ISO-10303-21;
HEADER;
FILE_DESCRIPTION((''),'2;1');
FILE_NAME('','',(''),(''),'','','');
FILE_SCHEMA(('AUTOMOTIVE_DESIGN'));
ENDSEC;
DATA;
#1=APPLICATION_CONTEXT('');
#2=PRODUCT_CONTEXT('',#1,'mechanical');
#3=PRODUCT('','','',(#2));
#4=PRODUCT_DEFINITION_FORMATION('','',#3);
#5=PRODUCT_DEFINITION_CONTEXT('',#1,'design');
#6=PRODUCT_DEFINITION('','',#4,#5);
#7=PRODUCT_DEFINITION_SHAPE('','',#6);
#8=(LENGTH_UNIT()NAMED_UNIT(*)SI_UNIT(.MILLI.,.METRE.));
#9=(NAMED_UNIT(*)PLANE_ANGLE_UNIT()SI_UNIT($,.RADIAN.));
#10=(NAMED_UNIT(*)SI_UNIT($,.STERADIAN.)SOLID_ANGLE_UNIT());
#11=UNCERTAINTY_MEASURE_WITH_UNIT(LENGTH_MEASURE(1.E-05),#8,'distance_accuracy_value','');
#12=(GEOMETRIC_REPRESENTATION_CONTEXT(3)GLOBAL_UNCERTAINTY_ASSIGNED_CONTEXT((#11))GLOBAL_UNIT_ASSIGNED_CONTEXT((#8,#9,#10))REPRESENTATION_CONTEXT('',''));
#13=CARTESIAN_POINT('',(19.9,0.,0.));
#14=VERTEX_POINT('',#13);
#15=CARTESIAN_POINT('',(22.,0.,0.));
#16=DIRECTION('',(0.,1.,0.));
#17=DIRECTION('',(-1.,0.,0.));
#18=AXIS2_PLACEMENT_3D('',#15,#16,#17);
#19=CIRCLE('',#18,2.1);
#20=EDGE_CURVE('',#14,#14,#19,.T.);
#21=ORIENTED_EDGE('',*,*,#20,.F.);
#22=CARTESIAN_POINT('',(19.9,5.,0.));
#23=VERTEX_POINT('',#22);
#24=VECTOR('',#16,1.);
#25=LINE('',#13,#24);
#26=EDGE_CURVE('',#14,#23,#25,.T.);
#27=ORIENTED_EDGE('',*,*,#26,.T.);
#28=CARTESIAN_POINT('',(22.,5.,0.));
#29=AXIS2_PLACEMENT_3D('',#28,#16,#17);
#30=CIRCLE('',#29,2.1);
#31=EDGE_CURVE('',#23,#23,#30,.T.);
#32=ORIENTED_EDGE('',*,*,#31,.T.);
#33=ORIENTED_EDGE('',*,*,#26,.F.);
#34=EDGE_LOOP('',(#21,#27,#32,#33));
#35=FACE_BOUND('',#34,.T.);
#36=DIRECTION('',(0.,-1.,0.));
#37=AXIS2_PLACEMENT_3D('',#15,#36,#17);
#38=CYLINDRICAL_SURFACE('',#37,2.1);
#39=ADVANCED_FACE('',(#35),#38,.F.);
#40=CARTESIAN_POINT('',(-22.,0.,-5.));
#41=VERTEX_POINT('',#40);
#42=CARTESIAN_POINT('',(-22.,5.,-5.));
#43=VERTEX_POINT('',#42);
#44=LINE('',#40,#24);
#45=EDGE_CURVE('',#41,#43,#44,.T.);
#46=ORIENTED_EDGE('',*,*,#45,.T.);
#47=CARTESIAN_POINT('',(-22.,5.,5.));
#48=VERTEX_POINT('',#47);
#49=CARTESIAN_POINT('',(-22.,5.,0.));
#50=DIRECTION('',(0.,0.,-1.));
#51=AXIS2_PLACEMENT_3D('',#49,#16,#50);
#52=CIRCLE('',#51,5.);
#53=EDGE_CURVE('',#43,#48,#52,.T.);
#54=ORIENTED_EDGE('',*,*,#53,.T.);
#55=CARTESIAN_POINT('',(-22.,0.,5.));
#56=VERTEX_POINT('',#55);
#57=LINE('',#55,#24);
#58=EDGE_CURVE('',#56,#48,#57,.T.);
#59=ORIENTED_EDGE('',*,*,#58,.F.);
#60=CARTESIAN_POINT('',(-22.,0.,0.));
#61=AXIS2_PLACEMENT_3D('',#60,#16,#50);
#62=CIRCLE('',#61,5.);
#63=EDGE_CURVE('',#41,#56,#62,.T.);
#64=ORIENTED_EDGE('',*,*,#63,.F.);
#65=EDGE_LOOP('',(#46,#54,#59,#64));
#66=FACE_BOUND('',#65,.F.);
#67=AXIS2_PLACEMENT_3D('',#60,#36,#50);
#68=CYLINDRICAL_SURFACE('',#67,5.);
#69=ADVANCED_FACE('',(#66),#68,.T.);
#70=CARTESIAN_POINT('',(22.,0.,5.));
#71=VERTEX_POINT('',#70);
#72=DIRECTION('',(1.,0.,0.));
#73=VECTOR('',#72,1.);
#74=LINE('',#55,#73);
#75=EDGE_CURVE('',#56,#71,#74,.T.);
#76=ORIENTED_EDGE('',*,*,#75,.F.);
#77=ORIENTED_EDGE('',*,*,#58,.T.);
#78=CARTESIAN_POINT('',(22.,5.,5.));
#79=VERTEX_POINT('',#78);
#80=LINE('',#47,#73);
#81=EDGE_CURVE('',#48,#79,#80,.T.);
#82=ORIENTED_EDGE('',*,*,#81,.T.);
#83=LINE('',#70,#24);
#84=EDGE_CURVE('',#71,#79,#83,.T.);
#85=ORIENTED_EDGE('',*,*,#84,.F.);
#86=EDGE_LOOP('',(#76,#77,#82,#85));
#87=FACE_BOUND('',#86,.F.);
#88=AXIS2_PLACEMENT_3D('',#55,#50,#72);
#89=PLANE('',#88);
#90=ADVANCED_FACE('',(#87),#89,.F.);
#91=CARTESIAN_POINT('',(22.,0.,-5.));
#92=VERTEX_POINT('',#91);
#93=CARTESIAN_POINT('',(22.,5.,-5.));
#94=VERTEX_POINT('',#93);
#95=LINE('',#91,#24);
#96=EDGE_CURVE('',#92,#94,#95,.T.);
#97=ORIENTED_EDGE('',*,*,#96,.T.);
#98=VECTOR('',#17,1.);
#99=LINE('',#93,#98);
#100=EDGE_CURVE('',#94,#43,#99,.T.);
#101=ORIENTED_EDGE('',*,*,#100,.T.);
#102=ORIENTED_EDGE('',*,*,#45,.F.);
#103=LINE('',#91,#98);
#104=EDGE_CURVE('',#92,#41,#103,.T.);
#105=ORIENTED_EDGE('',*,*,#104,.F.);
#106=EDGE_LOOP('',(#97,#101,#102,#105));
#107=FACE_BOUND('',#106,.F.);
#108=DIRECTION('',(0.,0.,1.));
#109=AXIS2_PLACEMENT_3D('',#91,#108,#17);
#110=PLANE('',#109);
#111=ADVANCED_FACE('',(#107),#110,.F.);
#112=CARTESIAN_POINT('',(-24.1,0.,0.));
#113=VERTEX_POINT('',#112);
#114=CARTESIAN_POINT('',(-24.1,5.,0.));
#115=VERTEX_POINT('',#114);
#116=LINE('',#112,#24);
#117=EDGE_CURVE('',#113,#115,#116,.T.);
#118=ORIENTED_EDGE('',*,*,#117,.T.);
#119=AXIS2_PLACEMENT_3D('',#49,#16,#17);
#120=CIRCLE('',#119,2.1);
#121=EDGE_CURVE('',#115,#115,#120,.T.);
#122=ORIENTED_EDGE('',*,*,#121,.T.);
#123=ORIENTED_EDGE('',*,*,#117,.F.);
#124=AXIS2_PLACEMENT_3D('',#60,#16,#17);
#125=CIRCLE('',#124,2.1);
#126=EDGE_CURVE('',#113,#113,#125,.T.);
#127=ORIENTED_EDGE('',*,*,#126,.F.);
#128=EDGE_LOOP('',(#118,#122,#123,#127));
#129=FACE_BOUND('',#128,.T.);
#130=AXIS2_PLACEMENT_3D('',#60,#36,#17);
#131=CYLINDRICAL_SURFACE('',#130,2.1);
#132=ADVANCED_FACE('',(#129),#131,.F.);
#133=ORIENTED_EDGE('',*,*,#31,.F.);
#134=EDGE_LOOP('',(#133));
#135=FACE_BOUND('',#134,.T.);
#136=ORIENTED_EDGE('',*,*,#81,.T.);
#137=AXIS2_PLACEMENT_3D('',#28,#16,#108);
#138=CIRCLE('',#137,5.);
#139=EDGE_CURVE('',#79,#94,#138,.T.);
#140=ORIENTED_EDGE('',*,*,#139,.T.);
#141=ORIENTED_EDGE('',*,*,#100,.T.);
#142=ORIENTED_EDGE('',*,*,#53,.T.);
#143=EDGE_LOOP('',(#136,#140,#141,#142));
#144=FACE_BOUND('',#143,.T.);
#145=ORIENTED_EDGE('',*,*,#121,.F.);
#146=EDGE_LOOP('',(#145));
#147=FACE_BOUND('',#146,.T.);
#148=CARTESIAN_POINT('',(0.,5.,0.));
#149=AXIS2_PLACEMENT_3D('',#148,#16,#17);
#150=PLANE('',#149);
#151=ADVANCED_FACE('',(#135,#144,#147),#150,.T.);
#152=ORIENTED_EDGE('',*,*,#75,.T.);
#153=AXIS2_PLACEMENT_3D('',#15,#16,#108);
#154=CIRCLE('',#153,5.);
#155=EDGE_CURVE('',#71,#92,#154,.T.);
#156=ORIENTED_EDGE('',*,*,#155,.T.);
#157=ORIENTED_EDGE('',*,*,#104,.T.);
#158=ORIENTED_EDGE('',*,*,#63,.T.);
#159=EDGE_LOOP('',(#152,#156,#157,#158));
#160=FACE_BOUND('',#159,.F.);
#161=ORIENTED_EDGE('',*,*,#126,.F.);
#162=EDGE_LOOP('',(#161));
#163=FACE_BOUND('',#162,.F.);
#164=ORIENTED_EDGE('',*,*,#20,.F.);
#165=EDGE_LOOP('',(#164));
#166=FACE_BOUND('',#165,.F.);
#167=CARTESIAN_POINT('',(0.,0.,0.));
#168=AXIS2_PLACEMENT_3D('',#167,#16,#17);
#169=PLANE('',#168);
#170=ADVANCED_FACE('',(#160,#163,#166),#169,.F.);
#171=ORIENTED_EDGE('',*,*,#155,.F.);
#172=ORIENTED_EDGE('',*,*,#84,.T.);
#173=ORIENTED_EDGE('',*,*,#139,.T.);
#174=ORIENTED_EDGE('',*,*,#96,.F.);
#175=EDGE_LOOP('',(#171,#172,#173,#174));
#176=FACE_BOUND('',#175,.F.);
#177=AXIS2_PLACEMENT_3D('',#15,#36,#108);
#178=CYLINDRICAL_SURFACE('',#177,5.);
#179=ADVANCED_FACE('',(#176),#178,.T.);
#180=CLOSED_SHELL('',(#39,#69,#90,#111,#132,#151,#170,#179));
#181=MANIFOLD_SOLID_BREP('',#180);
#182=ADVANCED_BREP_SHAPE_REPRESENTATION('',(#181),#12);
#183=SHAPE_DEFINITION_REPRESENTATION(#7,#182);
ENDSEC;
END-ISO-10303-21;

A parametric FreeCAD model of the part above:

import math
import FreeCAD as App
import Part
import Sketcher

doc = App.newDocument("Part")
params = doc.addObject("Spreadsheet::Sheet", "Params")
for row, (alias, value) in enumerate([
    ("sketch1_radius", "5 mm"),
    ("sketch1_diameter", "4.2 mm"),
    ("sketch1_width", "44 mm"),
    ("pad1_length", "5 mm"),
], start=1):
    params.set(f"A{row}", alias)
    params.set(f"B{row}", "=" + value)
    params.setAlias(f"B{row}", alias)

body = doc.addObject("PartDesign::Body", "Body")

# Sketch on XZ plane
sketch1 = body.newObject("Sketcher::SketchObject", "Sketch")
sketch1.AttachmentSupport = (doc.getObject("XZ_Plane"), [""])
sketch1.MapMode = "FlatFace"
sketch1.addGeometry([
    Part.ArcOfCircle(Part.Circle(App.Vector(-22, 0, 0), App.Vector(0, 0, 1), 5), math.radians(90), math.radians(270)),  # 0
    Part.LineSegment(App.Vector(-22, 5, 0), App.Vector(22, 5, 0)),  # 1
    Part.ArcOfCircle(Part.Circle(App.Vector(22, 0, 0), App.Vector(0, 0, 1), 5), math.radians(-90), math.radians(90)),  # 2
    Part.LineSegment(App.Vector(22, -5, 0), App.Vector(-22, -5, 0)),  # 3
    Part.Circle(App.Vector(22, 0, 0), App.Vector(0, 0, 1), 2.1),  # 4
    Part.Circle(App.Vector(-22, 0, 0), App.Vector(0, 0, 1), 2.1),  # 5
], False)
sketch1.addConstraint([
    Sketcher.Constraint("Tangent", 0, 1, 1, 1),
    Sketcher.Constraint("Tangent", 1, 2, 2, 2),
    Sketcher.Constraint("Tangent", 2, 1, 3, 1),
    Sketcher.Constraint("Tangent", 3, 2, 0, 2),
    Sketcher.Constraint("Horizontal", 1),
    Sketcher.Constraint("Horizontal", 3),
    Sketcher.Constraint("Coincident", 4, 3, 2, 3),
    Sketcher.Constraint("Coincident", 5, 3, 0, 3),
    Sketcher.Constraint("Equal", 4, 5),
    Sketcher.Constraint("Symmetric", 0, 3, 2, 3, -1, 1),
    Sketcher.Constraint("Radius", 0, 5.0),
    Sketcher.Constraint("Diameter", 4, 4.2),
    Sketcher.Constraint("DistanceX", 1, 1, 1, 2, 44.0),
])
sketch1.setExpression("Constraints[10]", "Params.sketch1_radius")
sketch1.setExpression("Constraints[11]", "Params.sketch1_diameter")
sketch1.setExpression("Constraints[12]", "Params.sketch1_width")
pad1 = body.newObject("PartDesign::Pad", "Pad")
pad1.Profile = sketch1
pad1.setExpression("Length", "Params.pad1_length")
pad1.Reversed = True

doc.recompute()
